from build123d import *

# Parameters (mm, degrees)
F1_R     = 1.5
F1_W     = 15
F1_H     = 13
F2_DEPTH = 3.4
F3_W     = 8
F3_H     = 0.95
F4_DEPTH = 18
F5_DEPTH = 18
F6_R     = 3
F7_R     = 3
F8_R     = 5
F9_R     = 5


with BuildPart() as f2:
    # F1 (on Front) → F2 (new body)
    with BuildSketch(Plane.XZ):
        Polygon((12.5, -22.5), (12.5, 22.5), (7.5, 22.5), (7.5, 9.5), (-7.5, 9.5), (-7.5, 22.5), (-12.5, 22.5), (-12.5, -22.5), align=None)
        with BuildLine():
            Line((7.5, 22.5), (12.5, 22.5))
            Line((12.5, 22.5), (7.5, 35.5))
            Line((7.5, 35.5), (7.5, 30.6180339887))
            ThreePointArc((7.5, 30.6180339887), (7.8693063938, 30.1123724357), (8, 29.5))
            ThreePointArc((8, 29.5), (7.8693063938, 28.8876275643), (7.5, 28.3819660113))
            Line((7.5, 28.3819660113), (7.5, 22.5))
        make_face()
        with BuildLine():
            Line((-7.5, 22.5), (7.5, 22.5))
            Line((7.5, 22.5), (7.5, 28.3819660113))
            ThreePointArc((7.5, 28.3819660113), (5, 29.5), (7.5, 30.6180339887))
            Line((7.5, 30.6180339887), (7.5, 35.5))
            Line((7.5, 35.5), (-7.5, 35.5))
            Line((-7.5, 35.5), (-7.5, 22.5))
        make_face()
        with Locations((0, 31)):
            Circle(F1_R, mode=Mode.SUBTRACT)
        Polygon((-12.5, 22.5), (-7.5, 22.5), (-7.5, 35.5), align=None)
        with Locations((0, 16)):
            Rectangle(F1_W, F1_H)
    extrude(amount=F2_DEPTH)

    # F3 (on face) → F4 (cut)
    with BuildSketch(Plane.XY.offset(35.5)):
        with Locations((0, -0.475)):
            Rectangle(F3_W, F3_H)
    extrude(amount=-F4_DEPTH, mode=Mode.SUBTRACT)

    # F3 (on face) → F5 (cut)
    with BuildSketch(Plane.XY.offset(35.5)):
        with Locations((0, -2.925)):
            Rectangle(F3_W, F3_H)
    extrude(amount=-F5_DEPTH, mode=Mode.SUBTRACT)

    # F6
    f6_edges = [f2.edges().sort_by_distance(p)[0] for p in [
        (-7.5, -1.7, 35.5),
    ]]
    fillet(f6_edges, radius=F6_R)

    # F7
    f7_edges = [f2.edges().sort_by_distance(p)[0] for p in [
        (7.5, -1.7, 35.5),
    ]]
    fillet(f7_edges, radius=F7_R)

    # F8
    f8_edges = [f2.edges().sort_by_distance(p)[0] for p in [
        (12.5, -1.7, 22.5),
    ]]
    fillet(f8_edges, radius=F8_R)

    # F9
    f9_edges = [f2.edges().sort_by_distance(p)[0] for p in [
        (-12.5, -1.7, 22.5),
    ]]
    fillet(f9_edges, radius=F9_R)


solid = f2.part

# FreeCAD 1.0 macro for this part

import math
import FreeCAD as App
import Part
import Sketcher
from FreeCAD import Vector


def edges_at(feature, points):
    """Names of the edges that pass closest to the given points."""
    edges = feature.Shape.Edges
    near = lambda p: min(range(len(edges)), key=lambda i: edges[i].distToShape(Part.Vertex(*p))[0])
    return sorted({f"Edge{near(p) + 1}" for p in points})

doc = App.newDocument("Part")
body = doc.addObject("PartDesign::Body", "Body")

sketch1 = body.newObject("Sketcher::SketchObject", "Sketch")
sketch1.AttachmentSupport = (doc.getObject("XZ_Plane"), [""])
sketch1.MapMode = "FlatFace"
sketch1.addGeometry([
    Part.LineSegment(Vector(7.5, 35.5, 0), Vector(-7.5, 35.5, 0)),
    Part.LineSegment(Vector(-7.5, 35.5, 0), Vector(-12.5, 22.5, 0)),
    Part.LineSegment(Vector(-12.5, 22.5, 0), Vector(-12.5, -22.5, 0)),
    Part.LineSegment(Vector(-12.5, -22.5, 0), Vector(12.5, -22.5, 0)),
    Part.LineSegment(Vector(12.5, -22.5, 0), Vector(12.5, 22.5, 0)),
    Part.LineSegment(Vector(12.5, 22.5, 0), Vector(7.5, 35.5, 0)),
    Part.Circle(Vector(0, 31, 0), Vector(0, 0, 1), 1.5),
    Part.ArcOfCircle(Part.Circle(Vector(6.5, 29.5, 0), Vector(0, 0, 1), 1.5), math.radians(0), math.radians(48.189685)),
    Part.ArcOfCircle(Part.Circle(Vector(6.5, 29.5, 0), Vector(0, 0, 1), 1.5), math.radians(-48.189685), math.radians(0)),
    Part.ArcOfCircle(Part.Circle(Vector(6.5, 29.5, 0), Vector(0, 0, 1), 1.5), math.radians(48.189685), math.radians(311.810315)),
], False)
sketch1.addConstraint([
    Sketcher.Constraint("Coincident", 0, 2, 1, 1),
    Sketcher.Constraint("Coincident", 1, 2, 2, 1),
    Sketcher.Constraint("Coincident", 2, 2, 3, 1),
    Sketcher.Constraint("Coincident", 3, 2, 4, 1),
    Sketcher.Constraint("Coincident", 4, 2, 5, 1),
    Sketcher.Constraint("Coincident", 5, 2, 0, 1),
    Sketcher.Constraint("Tangent", 7, 1, 8, 2),
    Sketcher.Constraint("Tangent", 8, 1, 9, 2),
    Sketcher.Constraint("Tangent", 9, 1, 7, 2),
    Sketcher.Constraint("Horizontal", 0),
    Sketcher.Constraint("Vertical", 2),
    Sketcher.Constraint("Horizontal", 3),
    Sketcher.Constraint("Vertical", 4),
    Sketcher.Constraint("Equal", 6, 7),
    Sketcher.Constraint("Symmetric", 1, 2, 3, 2, -1, 1),
    Sketcher.Constraint("PointOnObject", 6, 3, -2),
    Sketcher.Constraint("Horizontal", 1, 2, 4, 2),
    Sketcher.Constraint("Horizontal", 9, 3, 7, 1),
    Sketcher.Constraint("Vertical", 5, 2, 8, 1),
    Sketcher.Constraint("Vertical", 8, 1, 9, 1),
    Sketcher.Constraint("Equal", 1, 5),
    Sketcher.Constraint("Diameter", 6, 3.0),
    Sketcher.Constraint("DistanceX", 0, 2, 0, 1, 15.0),
    Sketcher.Constraint("DistanceX", 3, 1, 3, 2, 25.0),
    Sketcher.Constraint("DistanceY", 2, 2, 2, 1, 45.0),
    Sketcher.Constraint("DistanceY", -1, 1, 6, 3, 31.0),
    Sketcher.Constraint("DistanceX", -1, 1, 7, 1, 8.0),
    Sketcher.Constraint("DistanceY", 9, 3, 0, 2, 6.0),
    Sketcher.Constraint("DistanceY", 1, 2, 0, 2, 13.0),
])
pad1 = body.newObject("PartDesign::Pad", "Pad")
pad1.Profile = sketch1
pad1.Length = 3.4

sketch2 = body.newObject("Sketcher::SketchObject", "Sketch001")
sketch2.AttachmentSupport = (doc.getObject("XY_Plane"), [""])
sketch2.MapMode = "FlatFace"
sketch2.AttachmentOffset = App.Placement(Vector(0, 0, 35.5), App.Rotation())
sketch2.addGeometry([
    Part.LineSegment(Vector(-4, 0, 0), Vector(-4, -0.95, 0)),
    Part.LineSegment(Vector(-4, -0.95, 0), Vector(4, -0.95, 0)),
    Part.LineSegment(Vector(4, -0.95, 0), Vector(4, 0, 0)),
    Part.LineSegment(Vector(4, 0, 0), Vector(-4, 0, 0)),
], False)
sketch2.addConstraint([
    Sketcher.Constraint("Coincident", 0, 2, 1, 1),
    Sketcher.Constraint("Coincident", 1, 2, 2, 1),
    Sketcher.Constraint("Coincident", 2, 2, 3, 1),
    Sketcher.Constraint("Coincident", 3, 2, 0, 1),
    Sketcher.Constraint("Vertical", 0),
    Sketcher.Constraint("Horizontal", 1),
    Sketcher.Constraint("Vertical", 2),
    Sketcher.Constraint("Horizontal", 3),
    Sketcher.Constraint("Symmetric", 2, 2, 3, 2, -1, 1),
    Sketcher.Constraint("DistanceX", 1, 1, 1, 2, 8.0),
    Sketcher.Constraint("DistanceY", 0, 2, 0, 1, 0.95),
])
pocket1 = body.newObject("PartDesign::Pocket", "Pocket")
pocket1.Profile = sketch2
pocket1.Length = 18

sketch3 = body.newObject("Sketcher::SketchObject", "Sketch002")
sketch3.AttachmentSupport = (doc.getObject("XY_Plane"), [""])
sketch3.MapMode = "FlatFace"
sketch3.AttachmentOffset = App.Placement(Vector(0, 0, 35.5), App.Rotation())
sketch3.addGeometry([
    Part.LineSegment(Vector(-4, -2.45, 0), Vector(-4, -3.4, 0)),
    Part.LineSegment(Vector(-4, -3.4, 0), Vector(4, -3.4, 0)),
    Part.LineSegment(Vector(4, -3.4, 0), Vector(4, -2.45, 0)),
    Part.LineSegment(Vector(4, -2.45, 0), Vector(-4, -2.45, 0)),
], False)
sketch3.addConstraint([
    Sketcher.Constraint("Coincident", 0, 2, 1, 1),
    Sketcher.Constraint("Coincident", 1, 2, 2, 1),
    Sketcher.Constraint("Coincident", 2, 2, 3, 1),
    Sketcher.Constraint("Coincident", 3, 2, 0, 1),
    Sketcher.Constraint("Vertical", 0),
    Sketcher.Constraint("Horizontal", 1),
    Sketcher.Constraint("Vertical", 2),
    Sketcher.Constraint("Horizontal", 3),
    Sketcher.Constraint("DistanceX", 1, 1, 1, 2, 8.0),
    Sketcher.Constraint("DistanceX", 0, 2, -1, 1, 4.0),
    Sketcher.Constraint("DistanceY", 0, 2, 0, 1, 0.95),
    Sketcher.Constraint("DistanceY", 0, 2, -1, 1, 3.4),
])
pocket2 = body.newObject("PartDesign::Pocket", "Pocket001")
pocket2.Profile = sketch3
pocket2.Length = 18
doc.recompute()

fillet = body.newObject("PartDesign::Fillet", "Fillet")
fillet.Base = (pocket2, edges_at(pocket2, [(-7.5, -1.7, 35.5)]))
fillet.Radius = 3
doc.recompute()

fillet2 = body.newObject("PartDesign::Fillet", "Fillet001")
fillet2.Base = (fillet, edges_at(fillet, [(7.5, -1.7, 35.5)]))
fillet2.Radius = 3
doc.recompute()

fillet3 = body.newObject("PartDesign::Fillet", "Fillet002")
fillet3.Base = (fillet2, edges_at(fillet2, [(12.5, -1.7, 22.5)]))
fillet3.Radius = 5
doc.recompute()

fillet4 = body.newObject("PartDesign::Fillet", "Fillet003")
fillet4.Base = (fillet3, edges_at(fillet3, [(-12.5, -1.7, 22.5)]))
fillet4.Radius = 5

doc.recompute()
